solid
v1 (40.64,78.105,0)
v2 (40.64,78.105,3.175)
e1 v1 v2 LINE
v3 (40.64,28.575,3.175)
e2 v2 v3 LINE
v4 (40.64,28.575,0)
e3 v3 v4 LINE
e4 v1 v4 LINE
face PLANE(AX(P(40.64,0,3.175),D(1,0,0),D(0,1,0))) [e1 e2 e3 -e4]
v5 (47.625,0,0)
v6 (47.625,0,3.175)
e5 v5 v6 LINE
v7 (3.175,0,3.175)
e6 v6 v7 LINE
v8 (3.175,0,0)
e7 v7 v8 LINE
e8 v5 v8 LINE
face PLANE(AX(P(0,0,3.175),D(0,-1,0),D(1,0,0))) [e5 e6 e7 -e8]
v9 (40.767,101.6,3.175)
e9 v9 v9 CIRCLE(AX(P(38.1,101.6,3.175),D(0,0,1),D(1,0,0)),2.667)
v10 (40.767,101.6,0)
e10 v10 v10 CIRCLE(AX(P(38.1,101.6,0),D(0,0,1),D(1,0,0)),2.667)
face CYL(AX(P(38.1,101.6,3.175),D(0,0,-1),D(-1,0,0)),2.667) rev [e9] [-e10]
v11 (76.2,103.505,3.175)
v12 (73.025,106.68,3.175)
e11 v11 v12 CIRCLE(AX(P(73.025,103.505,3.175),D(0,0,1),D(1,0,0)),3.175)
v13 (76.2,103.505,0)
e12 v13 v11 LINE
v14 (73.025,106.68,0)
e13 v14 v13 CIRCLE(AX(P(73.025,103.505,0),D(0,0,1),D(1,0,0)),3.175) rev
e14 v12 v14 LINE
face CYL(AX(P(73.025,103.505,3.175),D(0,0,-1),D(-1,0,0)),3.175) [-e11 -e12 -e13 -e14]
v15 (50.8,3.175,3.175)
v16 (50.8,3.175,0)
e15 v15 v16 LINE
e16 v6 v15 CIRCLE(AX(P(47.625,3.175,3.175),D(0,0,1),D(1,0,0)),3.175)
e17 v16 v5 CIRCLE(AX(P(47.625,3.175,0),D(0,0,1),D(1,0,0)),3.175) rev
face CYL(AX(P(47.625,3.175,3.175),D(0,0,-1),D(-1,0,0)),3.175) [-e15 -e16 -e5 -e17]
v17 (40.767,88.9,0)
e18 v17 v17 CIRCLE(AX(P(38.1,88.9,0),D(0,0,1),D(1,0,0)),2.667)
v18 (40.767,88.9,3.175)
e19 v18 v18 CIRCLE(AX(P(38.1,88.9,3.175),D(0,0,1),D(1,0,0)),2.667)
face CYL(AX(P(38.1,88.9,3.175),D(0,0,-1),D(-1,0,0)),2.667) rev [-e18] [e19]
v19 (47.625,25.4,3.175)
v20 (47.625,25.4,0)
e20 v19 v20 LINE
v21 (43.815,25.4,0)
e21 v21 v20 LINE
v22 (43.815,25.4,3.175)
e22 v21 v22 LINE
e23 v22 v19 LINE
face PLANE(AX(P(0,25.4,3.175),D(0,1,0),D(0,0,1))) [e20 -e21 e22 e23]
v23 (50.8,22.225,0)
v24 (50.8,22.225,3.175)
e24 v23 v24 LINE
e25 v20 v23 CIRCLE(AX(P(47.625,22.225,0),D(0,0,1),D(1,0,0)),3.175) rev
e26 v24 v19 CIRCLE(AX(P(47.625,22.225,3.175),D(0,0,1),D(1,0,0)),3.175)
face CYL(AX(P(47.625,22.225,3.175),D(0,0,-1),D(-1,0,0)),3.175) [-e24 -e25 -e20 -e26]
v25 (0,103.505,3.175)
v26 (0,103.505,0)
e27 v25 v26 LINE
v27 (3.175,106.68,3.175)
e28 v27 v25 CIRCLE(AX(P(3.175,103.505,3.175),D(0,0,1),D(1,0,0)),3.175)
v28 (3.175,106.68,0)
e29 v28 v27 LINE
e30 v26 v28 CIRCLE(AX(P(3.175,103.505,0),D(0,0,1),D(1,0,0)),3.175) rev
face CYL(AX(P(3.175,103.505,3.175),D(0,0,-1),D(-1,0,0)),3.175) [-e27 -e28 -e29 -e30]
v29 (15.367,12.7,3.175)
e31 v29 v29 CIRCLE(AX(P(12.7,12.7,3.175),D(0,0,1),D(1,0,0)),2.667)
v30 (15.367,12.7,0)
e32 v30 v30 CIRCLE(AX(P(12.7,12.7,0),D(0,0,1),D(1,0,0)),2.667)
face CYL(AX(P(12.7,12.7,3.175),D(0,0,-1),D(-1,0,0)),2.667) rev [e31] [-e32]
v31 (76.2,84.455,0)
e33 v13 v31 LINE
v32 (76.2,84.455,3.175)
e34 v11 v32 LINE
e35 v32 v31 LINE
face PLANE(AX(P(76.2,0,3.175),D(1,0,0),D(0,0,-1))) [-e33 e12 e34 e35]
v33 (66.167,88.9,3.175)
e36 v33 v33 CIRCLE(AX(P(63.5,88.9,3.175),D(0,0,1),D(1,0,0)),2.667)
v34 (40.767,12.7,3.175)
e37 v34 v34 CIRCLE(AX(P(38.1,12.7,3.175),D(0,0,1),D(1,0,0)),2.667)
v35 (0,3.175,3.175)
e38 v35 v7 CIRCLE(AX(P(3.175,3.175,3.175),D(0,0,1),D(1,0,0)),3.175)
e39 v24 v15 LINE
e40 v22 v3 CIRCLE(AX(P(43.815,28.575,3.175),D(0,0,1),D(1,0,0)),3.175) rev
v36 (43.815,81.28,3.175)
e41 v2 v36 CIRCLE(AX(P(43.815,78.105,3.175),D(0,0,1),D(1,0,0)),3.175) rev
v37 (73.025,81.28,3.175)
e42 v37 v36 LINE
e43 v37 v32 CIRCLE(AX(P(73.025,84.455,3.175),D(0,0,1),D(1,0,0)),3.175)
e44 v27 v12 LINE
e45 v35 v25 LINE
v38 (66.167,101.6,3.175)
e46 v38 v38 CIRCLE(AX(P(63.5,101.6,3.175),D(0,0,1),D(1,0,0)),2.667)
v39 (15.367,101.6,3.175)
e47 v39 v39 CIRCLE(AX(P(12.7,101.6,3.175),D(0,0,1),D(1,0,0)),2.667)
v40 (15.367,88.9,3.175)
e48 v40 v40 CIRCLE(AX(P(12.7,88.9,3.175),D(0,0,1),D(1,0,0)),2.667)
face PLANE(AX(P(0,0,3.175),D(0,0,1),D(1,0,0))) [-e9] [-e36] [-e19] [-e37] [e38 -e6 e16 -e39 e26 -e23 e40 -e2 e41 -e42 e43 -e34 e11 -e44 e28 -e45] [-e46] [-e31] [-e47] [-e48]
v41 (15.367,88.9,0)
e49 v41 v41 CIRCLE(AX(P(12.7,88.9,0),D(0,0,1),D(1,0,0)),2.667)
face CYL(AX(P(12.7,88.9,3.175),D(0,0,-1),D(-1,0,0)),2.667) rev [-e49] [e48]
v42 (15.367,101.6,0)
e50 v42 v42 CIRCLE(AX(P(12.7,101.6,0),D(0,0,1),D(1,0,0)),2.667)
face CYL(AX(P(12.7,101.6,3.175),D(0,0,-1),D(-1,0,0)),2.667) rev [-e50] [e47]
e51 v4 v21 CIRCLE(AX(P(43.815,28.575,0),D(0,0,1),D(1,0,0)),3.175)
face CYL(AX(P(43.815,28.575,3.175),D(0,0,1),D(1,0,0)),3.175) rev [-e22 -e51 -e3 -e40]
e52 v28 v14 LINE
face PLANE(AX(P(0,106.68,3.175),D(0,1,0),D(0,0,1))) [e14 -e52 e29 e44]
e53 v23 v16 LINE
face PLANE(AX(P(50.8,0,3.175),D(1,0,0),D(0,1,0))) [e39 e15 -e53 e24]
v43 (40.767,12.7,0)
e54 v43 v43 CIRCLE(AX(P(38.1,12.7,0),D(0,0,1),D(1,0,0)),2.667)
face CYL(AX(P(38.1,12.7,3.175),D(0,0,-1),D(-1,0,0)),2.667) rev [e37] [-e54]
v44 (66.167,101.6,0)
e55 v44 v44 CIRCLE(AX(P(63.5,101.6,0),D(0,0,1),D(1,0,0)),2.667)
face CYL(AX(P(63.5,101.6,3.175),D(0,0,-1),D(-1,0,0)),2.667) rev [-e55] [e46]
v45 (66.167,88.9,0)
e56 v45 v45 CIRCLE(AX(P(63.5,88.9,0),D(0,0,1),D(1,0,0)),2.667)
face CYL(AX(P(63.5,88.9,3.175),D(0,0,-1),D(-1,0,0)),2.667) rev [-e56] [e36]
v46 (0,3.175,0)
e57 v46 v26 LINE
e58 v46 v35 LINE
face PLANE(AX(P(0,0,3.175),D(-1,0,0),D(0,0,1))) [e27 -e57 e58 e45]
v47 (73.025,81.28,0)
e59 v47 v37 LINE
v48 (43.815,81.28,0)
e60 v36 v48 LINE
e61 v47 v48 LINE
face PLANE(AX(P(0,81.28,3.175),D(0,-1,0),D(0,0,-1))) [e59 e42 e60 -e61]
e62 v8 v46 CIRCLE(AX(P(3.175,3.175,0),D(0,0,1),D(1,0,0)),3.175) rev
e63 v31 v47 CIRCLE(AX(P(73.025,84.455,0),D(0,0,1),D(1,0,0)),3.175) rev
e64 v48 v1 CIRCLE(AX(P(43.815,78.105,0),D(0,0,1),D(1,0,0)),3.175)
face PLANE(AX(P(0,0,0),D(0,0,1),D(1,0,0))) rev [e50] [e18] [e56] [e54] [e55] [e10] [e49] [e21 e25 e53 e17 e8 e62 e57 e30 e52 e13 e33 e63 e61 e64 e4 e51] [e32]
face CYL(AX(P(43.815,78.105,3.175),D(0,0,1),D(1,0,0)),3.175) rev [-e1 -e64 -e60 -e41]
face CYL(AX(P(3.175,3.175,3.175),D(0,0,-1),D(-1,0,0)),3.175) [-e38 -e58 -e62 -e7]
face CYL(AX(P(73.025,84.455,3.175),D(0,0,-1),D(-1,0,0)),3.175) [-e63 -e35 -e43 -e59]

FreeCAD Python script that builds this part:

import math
import FreeCAD as App
import Part
import Sketcher

V = App.Vector
Q = App.Units.Quantity


def edges_at(feature, points):
    """Names of the edges that pass closest to the given points."""
    edges = feature.Shape.Edges
    near = lambda p: min(range(len(edges)), key=lambda i: edges[i].distToShape(Part.Vertex(*p))[0])
    return sorted({f"Edge{near(p) + 1}" for p in points})


def add_polygon(sketch, points):
    """Adds a closed chain of lines whose ends are joined by coincident constraints."""
    first, n = sketch.GeometryCount, len(points)
    for a, b in zip(points, points[1:] + points[:1]):
        sketch.addGeometry(Part.LineSegment(App.Vector(*a, 0), App.Vector(*b, 0)), False)
    for i in range(n):
        sketch.addConstraint(Sketcher.Constraint("Coincident", first + i, 2, first + (i + 1) % n, 1))

doc = App.newDocument("Part")
body = doc.addObject("PartDesign::Body", "Body")

sketch1 = body.newObject("Sketcher::SketchObject", "Sketch")
sketch1.AttachmentSupport = (doc.getObject("XY_Plane"), [""])
sketch1.MapMode = "FlatFace"
add_polygon(sketch1, [(0, 106.7), (0, 0), (50.8, 0), (50.8, 25.4), (40.6, 25.4), (40.6, 81.3), (76.2, 81.3), (76.2, 106.7)])
sketch1.addGeometry(Part.ArcOfCircle(Part.Circle(V(38.1, 12.7, 0), V(0, 0, 1), 2.7), math.radians(18), math.radians(342)), False)
sketch1.addGeometry(Part.ArcOfCircle(Part.Circle(V(38.1, 12.7, 0), V(0, 0, 1), 2.7), math.radians(0), math.radians(17.75)), False)
sketch1.addGeometry(Part.ArcOfCircle(Part.Circle(V(38.1, 12.7, 0), V(0, 0, 1), 2.7), math.radians(-17.75), math.radians(0)), False)
sketch1.addGeometry(Part.Circle(V(12.7, 12.7, 0), V(0, 0, 1), 2.7), False)
sketch1.addGeometry(Part.Circle(V(12.7, 88.9, 0), V(0, 0, 1), 2.7), False)
sketch1.addGeometry(Part.Circle(V(12.7, 101.6, 0), V(0, 0, 1), 2.7), False)
sketch1.addGeometry(Part.Circle(V(38.1, 88.9, 0), V(0, 0, 1), 2.7), False)
sketch1.addGeometry(Part.Circle(V(38.1, 101.6, 0), V(0, 0, 1), 2.7), False)
sketch1.addGeometry(Part.Circle(V(63.5, 88.9, 0), V(0, 0, 1), 2.7), False)
sketch1.addGeometry(Part.Circle(V(63.5, 101.6, 0), V(0, 0, 1), 2.7), False)
sketch1.addConstraint([
    Sketcher.Constraint("Tangent", 8, 1, 9, 2),
    Sketcher.Constraint("Tangent", 9, 1, 10, 2),
    Sketcher.Constraint("Tangent", 10, 1, 8, 2),
    Sketcher.Constraint("Vertical", 0),
    Sketcher.Constraint("Horizontal", 1),
    Sketcher.Constraint("Vertical", 2),
    Sketcher.Constraint("Horizontal", 3),
    Sketcher.Constraint("Vertical", 4),
    Sketcher.Constraint("Horizontal", 5),
    Sketcher.Constraint("Vertical", 6),
    Sketcher.Constraint("Horizontal", 7),
    Sketcher.Constraint("Coincident", 0, 2, -1, 1),
    Sketcher.Constraint("Equal", 10, 11),
    Sketcher.Constraint("Equal", 11, 12),
    Sketcher.Constraint("Equal", 12, 13),
    Sketcher.Constraint("Equal", 13, 14),
    Sketcher.Constraint("Equal", 14, 15),
    Sketcher.Constraint("Equal", 15, 16),
    Sketcher.Constraint("Equal", 16, 17),
    Sketcher.Constraint("Horizontal", 10, 3, 11, 3),
    Sketcher.Constraint("Horizontal", 12, 3, 14, 3),
    Sketcher.Constraint("Horizontal", 13, 3, 15, 3),
    Sketcher.Constraint("Horizontal", 14, 3, 16, 3),
    Sketcher.Constraint("Horizontal", 15, 3, 17, 3),
    Sketcher.Constraint("Horizontal", 11, 3, 9, 1),
    Sketcher.Constraint("Vertical", 11, 3, 12, 3),
    Sketcher.Constraint("Vertical", 12, 3, 13, 3),
    Sketcher.Constraint("Vertical", 10, 3, 14, 3),
    Sketcher.Constraint("Vertical", 14, 3, 15, 3),
    Sketcher.Constraint("Vertical", 16, 3, 17, 3),
    Sketcher.Constraint("Vertical", 4, 2, 8, 1),
    Sketcher.Constraint("Vertical", 8, 1, 10, 1),
    Sketcher.Constraint("Equal", 2, 6),
    Sketcher.Constraint("Diameter", 11, Q("0.21 in")),
    Sketcher.Constraint("DistanceX", 1, 1, 1, 2, Q("2 in")),
    Sketcher.Constraint("DistanceX", 7, 2, 7, 1, Q("3 in")),
    Sketcher.Constraint("DistanceY", 2, 1, 2, 2, Q("1 in")),
    Sketcher.Constraint("DistanceX", 3, 2, 3, 1, Q("0.4 in")),
    Sketcher.Constraint("DistanceY", 0, 2, 0, 1, Q("4.2 in")),
    Sketcher.Constraint("DistanceY", -1, 1, 13, 3, Q("4 in")),
    Sketcher.Constraint("DistanceX", 11, 3, 9, 3, Q("1 in")),
    Sketcher.Constraint("DistanceY", 11, 3, 12, 3, Q("3 in")),
    Sketcher.Constraint("DistanceX", 14, 3, 16, 3, Q("1 in")),
    Sketcher.Constraint("DistanceX", -1, 1, 8, 3, Q("1.5 in")),
    Sketcher.Constraint("DistanceY", -1, 1, 8, 3, Q("0.5 in")),
])
pad1 = body.newObject("PartDesign::Pad", "Pad")
pad1.Profile = sketch1
pad1.Length = Q("0.125 in")
doc.recompute()

fillet = body.newObject("PartDesign::Fillet", "Fillet")
fillet.Base = (pad1, edges_at(pad1, [
    (50.8, 25.4, 1.587),
    (50.8, 0, 1.587),
    (0, 0, 1.587),
    (0, 106.68, 1.587),
    (76.2, 106.68, 1.587),
    (76.2, 81.28, 1.587),
    (40.64, 81.28, 1.587),
    (40.64, 25.4, 1.587),
]))
fillet.Radius = Q("0.125 in")

doc.recompute()
